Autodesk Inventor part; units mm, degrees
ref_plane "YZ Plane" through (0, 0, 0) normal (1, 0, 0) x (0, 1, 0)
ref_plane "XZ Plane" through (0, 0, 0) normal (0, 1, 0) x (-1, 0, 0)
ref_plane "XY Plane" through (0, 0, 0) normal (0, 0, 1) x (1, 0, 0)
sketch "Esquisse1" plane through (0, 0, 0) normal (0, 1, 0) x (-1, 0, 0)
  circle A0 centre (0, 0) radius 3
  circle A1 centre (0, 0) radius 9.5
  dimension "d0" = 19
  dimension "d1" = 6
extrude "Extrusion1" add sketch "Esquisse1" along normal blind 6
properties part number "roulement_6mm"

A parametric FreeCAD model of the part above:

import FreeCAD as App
import Part
import Sketcher
from FreeCAD import Vector
Q = App.Units.Quantity

doc = App.newDocument("Part")
body = doc.addObject("PartDesign::Body", "Body")

sketch1 = doc.addObject("Sketcher::SketchObject", "Sketch")
body.addObject(sketch1)
sketch1.AttachmentSupport = (doc.XZ_Plane, [""])
sketch1.MapMode = "FlatFace"
sketch1.addGeometry(Part.Circle(Vector(0, 0, 0), Vector(0, 0, 1), 9.5), False)
sketch1.addGeometry(Part.Circle(Vector(0, 0, 0), Vector(0, 0, 1), 3), False)
sketch1.addConstraint(Sketcher.Constraint("Coincident", 0, 3, -1, 1))
sketch1.addConstraint(Sketcher.Constraint("Coincident", 1, 3, -1, 1))
sketch1.addConstraint(Sketcher.Constraint("Diameter", 0, Q("19 mm")))
sketch1.addConstraint(Sketcher.Constraint("Diameter", 1, Q("6 mm")))
pad1 = doc.addObject("PartDesign::Pad", "Pad")
body.addObject(pad1)
pad1.Profile = sketch1
pad1.Length = 6
pad1.Reversed = True

doc.recompute()
